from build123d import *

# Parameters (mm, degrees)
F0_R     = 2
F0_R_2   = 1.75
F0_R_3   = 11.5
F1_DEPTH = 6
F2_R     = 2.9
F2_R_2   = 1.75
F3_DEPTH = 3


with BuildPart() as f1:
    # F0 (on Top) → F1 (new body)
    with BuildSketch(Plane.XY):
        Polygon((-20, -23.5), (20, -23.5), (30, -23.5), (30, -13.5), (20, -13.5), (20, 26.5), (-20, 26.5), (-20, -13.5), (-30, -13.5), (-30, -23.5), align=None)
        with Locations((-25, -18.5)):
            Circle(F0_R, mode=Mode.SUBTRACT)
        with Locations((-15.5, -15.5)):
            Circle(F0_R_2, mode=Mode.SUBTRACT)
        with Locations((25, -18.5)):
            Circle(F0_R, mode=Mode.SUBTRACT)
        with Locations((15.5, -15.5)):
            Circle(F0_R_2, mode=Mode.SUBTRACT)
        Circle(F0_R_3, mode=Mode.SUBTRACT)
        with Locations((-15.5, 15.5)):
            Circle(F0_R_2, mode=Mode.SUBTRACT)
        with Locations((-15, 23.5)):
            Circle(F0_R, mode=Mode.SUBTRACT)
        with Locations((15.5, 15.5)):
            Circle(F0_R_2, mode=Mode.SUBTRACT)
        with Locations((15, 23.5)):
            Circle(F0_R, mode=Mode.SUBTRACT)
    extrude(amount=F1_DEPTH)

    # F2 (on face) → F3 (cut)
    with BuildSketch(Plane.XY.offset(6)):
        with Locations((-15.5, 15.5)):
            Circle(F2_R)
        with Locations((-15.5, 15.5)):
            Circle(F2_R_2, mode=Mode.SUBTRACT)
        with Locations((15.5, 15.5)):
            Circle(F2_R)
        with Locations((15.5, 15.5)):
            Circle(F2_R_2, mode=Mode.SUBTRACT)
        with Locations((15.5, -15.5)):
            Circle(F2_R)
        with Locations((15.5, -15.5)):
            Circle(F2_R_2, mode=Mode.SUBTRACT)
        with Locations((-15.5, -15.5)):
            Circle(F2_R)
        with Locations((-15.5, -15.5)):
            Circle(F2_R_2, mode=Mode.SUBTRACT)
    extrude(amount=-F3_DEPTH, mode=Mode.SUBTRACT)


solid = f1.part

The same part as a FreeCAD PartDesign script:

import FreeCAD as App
import Part
import Sketcher

V = App.Vector


def add_polygon(sketch, points):
    """Adds a closed chain of lines whose ends are joined by coincident constraints."""
    first, n = sketch.GeometryCount, len(points)
    for a, b in zip(points, points[1:] + points[:1]):
        sketch.addGeometry(Part.LineSegment(App.Vector(*a, 0), App.Vector(*b, 0)), False)
    for i in range(n):
        sketch.addConstraint(Sketcher.Constraint("Coincident", first + i, 2, first + (i + 1) % n, 1))

doc = App.newDocument("Part")
body = doc.addObject("PartDesign::Body", "Body")

# Sketch on XY plane
sketch1 = doc.addObject("Sketcher::SketchObject", "Sketch")
body.addObject(sketch1)
sketch1.AttachmentSupport = (doc.XY_Plane, [""])
sketch1.MapMode = "FlatFace"
add_polygon(sketch1, [(30, -23.5), (30, -13.5), (20, -13.5), (20, 26.5), (-20, 26.5), (-20, -13.5), (-30, -13.5), (-30, -23.5)])  # lines 0-7
sketch1.addGeometry(Part.Circle(V(-25, -18.5, 0), V(0, 0, 1), 2), False)  # 8
sketch1.addGeometry(Part.Circle(V(-15.5, -15.5, 0), V(0, 0, 1), 1.75), False)  # 9
sketch1.addGeometry(Part.Circle(V(15.5, -15.5, 0), V(0, 0, 1), 1.75), False)  # 10
sketch1.addGeometry(Part.Circle(V(25, -18.5, 0), V(0, 0, 1), 2), False)  # 11
sketch1.addGeometry(Part.Circle(V(0, 0, 0), V(0, 0, 1), 11.5), False)  # 12
sketch1.addGeometry(Part.Circle(V(-15.5, 15.5, 0), V(0, 0, 1), 1.75), False)  # 13
sketch1.addGeometry(Part.Circle(V(-15, 23.5, 0), V(0, 0, 1), 2), False)  # 14
sketch1.addGeometry(Part.Circle(V(15.5, 15.5, 0), V(0, 0, 1), 1.75), False)  # 15
sketch1.addGeometry(Part.Circle(V(15, 23.5, 0), V(0, 0, 1), 2), False)  # 16
sketch1.addConstraint(Sketcher.Constraint("Vertical", 0))
sketch1.addConstraint(Sketcher.Constraint("Horizontal", 1))
sketch1.addConstraint(Sketcher.Constraint("Vertical", 2))
sketch1.addConstraint(Sketcher.Constraint("Horizontal", 3))
sketch1.addConstraint(Sketcher.Constraint("Vertical", 4))
sketch1.addConstraint(Sketcher.Constraint("Horizontal", 5))
sketch1.addConstraint(Sketcher.Constraint("Vertical", 6))
sketch1.addConstraint(Sketcher.Constraint("Horizontal", 7))
sketch1.addConstraint(Sketcher.Constraint("Coincident", 12, 3, -1, 1))
sketch1.addConstraint(Sketcher.Constraint("Equal", 9, 10))
sketch1.addConstraint(Sketcher.Constraint("Equal", 8, 11))
sketch1.addConstraint(Sketcher.Constraint("Equal", 10, 13))
sketch1.addConstraint(Sketcher.Constraint("Equal", 11, 14))
sketch1.addConstraint(Sketcher.Constraint("Equal", 13, 15))
sketch1.addConstraint(Sketcher.Constraint("Equal", 14, 16))
sketch1.addConstraint(Sketcher.Constraint("Symmetric", 10, 3, 13, 3, -1, 1))
sketch1.addConstraint(Sketcher.Constraint("Symmetric", 9, 3, 15, 3, -1, 1))
sketch1.addConstraint(Sketcher.Constraint("Symmetric", 9, 3, 10, 3, -2))
sketch1.addConstraint(Sketcher.Constraint("Symmetric", 8, 3, 11, 3, -2))
sketch1.addConstraint(Sketcher.Constraint("Symmetric", 14, 3, 16, 3, -2))
sketch1.addConstraint(Sketcher.Constraint("Symmetric", 1, 2, 4, 2, -2))
sketch1.addConstraint(Sketcher.Constraint("Equal", 1, 5))
sketch1.addConstraint(Sketcher.Constraint("Equal", 5, 0))
sketch1.addConstraint(Sketcher.Constraint("Equal", 3, 2))
sketch1.addConstraint(Sketcher.Constraint("Diameter", 8, 4.0))
sketch1.addConstraint(Sketcher.Constraint("Diameter", 12, 23.0))
sketch1.addConstraint(Sketcher.Constraint("Diameter", 9, 3.5))
sketch1.addConstraint(Sketcher.Constraint("DistanceX", 1, 2, 1, 1, 10.0))
sketch1.addConstraint(Sketcher.Constraint("DistanceX", 3, 2, 3, 1, 40.0))
sketch1.addConstraint(Sketcher.Constraint("DistanceX", 8, 3, -1, 1, 25.0))
sketch1.addConstraint(Sketcher.Constraint("DistanceX", 14, 3, -1, 1, 15.0))
sketch1.addConstraint(Sketcher.Constraint("DistanceY", 8, 3, 9, 3, 3.0))
sketch1.addConstraint(Sketcher.Constraint("DistanceX", 9, 3, 10, 3, 31.0))
sketch1.addConstraint(Sketcher.Constraint("DistanceY", 9, 3, 13, 3, 31.0))
sketch1.addConstraint(Sketcher.Constraint("DistanceY", 13, 3, 14, 3, 8.0))
sketch1.addConstraint(Sketcher.Constraint("DistanceY", 11, 3, 0, 2, 5.0))
pad1 = doc.addObject("PartDesign::Pad", "Pad")
body.addObject(pad1)
pad1.Profile = sketch1
pad1.Length = 6

# Sketch on XY plane
sketch2 = doc.addObject("Sketcher::SketchObject", "Sketch001")
body.addObject(sketch2)
sketch2.AttachmentSupport = (doc.XY_Plane, [""])
sketch2.MapMode = "FlatFace"
sketch2.AttachmentOffset = App.Placement(V(0, 0, 6), App.Rotation())
sketch2.addGeometry(Part.Circle(V(-15.5, 15.5, 0), V(0, 0, 1), 2.9), False)
sketch2.addGeometry(Part.Circle(V(-15.5, 15.5, 0), V(0, 0, 1), 1.75), False)
sketch2.addGeometry(Part.Circle(V(15.5, 15.5, 0), V(0, 0, 1), 2.9), False)
sketch2.addGeometry(Part.Circle(V(15.5, 15.5, 0), V(0, 0, 1), 1.75), False)
sketch2.addGeometry(Part.Circle(V(15.5, -15.5, 0), V(0, 0, 1), 2.9), False)
sketch2.addGeometry(Part.Circle(V(15.5, -15.5, 0), V(0, 0, 1), 1.75), False)
sketch2.addGeometry(Part.Circle(V(-15.5, -15.5, 0), V(0, 0, 1), 2.9), False)
sketch2.addGeometry(Part.Circle(V(-15.5, -15.5, 0), V(0, 0, 1), 1.75), False)
sketch2.addConstraint(Sketcher.Constraint("Coincident", 1, 3, 0, 3))
sketch2.addConstraint(Sketcher.Constraint("Coincident", 3, 3, 2, 3))
sketch2.addConstraint(Sketcher.Constraint("Coincident", 5, 3, 4, 3))
sketch2.addConstraint(Sketcher.Constraint("Coincident", 7, 3, 6, 3))
sketch2.addConstraint(Sketcher.Constraint("Equal", 0, 2))
sketch2.addConstraint(Sketcher.Constraint("Equal", 1, 3))
sketch2.addConstraint(Sketcher.Constraint("Equal", 2, 4))
sketch2.addConstraint(Sketcher.Constraint("Equal", 3, 5))
sketch2.addConstraint(Sketcher.Constraint("Equal", 4, 6))
sketch2.addConstraint(Sketcher.Constraint("Equal", 5, 7))
sketch2.addConstraint(Sketcher.Constraint("Symmetric", 0, 3, 4, 3, -1, 1))
sketch2.addConstraint(Sketcher.Constraint("Symmetric", 2, 3, 6, 3, -1, 1))
sketch2.addConstraint(Sketcher.Constraint("Symmetric", 0, 3, 2, 3, -2))
sketch2.addConstraint(Sketcher.Constraint("Diameter", 0, 5.8))
sketch2.addConstraint(Sketcher.Constraint("Diameter", 1, 3.5))
sketch2.addConstraint(Sketcher.Constraint("DistanceX", 0, 3, 2, 3, 31.0))
sketch2.addConstraint(Sketcher.Constraint("DistanceY", 4, 3, 2, 3, 31.0))
pocket1 = doc.addObject("PartDesign::Pocket", "Pocket")
body.addObject(pocket1)
pocket1.Profile = sketch2
pocket1.Length = 3

doc.recompute()
